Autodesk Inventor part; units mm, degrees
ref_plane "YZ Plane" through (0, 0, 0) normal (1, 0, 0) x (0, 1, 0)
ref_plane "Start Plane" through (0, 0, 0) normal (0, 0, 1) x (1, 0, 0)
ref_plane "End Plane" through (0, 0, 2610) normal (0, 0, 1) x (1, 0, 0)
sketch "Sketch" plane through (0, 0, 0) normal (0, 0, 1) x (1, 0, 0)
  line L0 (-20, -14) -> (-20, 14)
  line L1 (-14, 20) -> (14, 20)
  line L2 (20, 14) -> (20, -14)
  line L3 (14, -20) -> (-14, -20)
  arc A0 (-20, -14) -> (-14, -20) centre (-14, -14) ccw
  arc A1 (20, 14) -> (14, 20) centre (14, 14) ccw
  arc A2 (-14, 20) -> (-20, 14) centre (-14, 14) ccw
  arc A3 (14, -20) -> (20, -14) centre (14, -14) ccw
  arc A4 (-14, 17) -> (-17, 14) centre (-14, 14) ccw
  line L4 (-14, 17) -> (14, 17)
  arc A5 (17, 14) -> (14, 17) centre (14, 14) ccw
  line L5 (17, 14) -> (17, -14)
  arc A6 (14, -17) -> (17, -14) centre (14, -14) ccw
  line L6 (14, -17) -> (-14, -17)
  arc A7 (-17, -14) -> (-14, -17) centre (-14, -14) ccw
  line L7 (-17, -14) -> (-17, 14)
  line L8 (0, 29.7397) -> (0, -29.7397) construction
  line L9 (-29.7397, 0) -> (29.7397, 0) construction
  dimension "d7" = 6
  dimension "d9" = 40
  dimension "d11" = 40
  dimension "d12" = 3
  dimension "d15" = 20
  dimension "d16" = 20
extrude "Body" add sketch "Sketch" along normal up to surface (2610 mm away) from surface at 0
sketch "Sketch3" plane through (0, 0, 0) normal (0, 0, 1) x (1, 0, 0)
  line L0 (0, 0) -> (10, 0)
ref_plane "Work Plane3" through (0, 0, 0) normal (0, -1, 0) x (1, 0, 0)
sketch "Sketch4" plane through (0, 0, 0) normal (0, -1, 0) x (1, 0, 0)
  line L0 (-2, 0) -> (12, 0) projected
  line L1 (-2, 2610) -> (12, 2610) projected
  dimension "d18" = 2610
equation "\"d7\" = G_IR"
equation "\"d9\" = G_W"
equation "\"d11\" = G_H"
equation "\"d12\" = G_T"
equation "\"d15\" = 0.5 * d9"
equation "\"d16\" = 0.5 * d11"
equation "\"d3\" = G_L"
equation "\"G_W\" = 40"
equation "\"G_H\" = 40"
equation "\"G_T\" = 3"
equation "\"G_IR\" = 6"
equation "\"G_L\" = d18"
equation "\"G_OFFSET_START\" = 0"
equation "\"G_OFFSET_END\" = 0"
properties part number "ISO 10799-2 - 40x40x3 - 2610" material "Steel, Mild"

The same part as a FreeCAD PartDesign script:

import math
import FreeCAD as App
import Part
import Sketcher
from FreeCAD import Vector
Q = App.Units.Quantity

doc = App.newDocument("Part")
body = doc.addObject("PartDesign::Body", "Body")

# Sketch on XY plane
sketch1 = body.newObject("Sketcher::SketchObject", "Sketch")
sketch1.AttachmentSupport = (doc.getObject("XY_Plane"), [""])
sketch1.MapMode = "FlatFace"
sketch1.addGeometry(Part.LineSegment(Vector(-20, 14, 0), Vector(-20, -14, 0)), False)
sketch1.addGeometry(Part.ArcOfCircle(Part.Circle(Vector(-14, -14, 0), Vector(0, 0, 1), 6), math.radians(180), math.radians(270)), False)
sketch1.addGeometry(Part.LineSegment(Vector(-14, -20, 0), Vector(14, -20, 0)), False)
sketch1.addGeometry(Part.ArcOfCircle(Part.Circle(Vector(14, -14, 0), Vector(0, 0, 1), 6), math.radians(-90), math.radians(0)), False)
sketch1.addGeometry(Part.LineSegment(Vector(20, -14, 0), Vector(20, 14, 0)), False)
sketch1.addGeometry(Part.ArcOfCircle(Part.Circle(Vector(14, 14, 0), Vector(0, 0, 1), 6), math.radians(0), math.radians(90)), False)
sketch1.addGeometry(Part.LineSegment(Vector(14, 20, 0), Vector(-14, 20, 0)), False)
sketch1.addGeometry(Part.ArcOfCircle(Part.Circle(Vector(-14, 14, 0), Vector(0, 0, 1), 6), math.radians(90), math.radians(180)), False)
sketch1.addGeometry(Part.ArcOfCircle(Part.Circle(Vector(-14, 14, 0), Vector(0, 0, 1), 3), math.radians(90), math.radians(180)), False)
sketch1.addGeometry(Part.LineSegment(Vector(-14, 17, 0), Vector(14, 17, 0)), False)
sketch1.addGeometry(Part.ArcOfCircle(Part.Circle(Vector(14, 14, 0), Vector(0, 0, 1), 3), math.radians(0), math.radians(90)), False)
sketch1.addGeometry(Part.LineSegment(Vector(17, 14, 0), Vector(17, -14, 0)), False)
sketch1.addGeometry(Part.ArcOfCircle(Part.Circle(Vector(14, -14, 0), Vector(0, 0, 1), 3), math.radians(-90), math.radians(0)), False)
sketch1.addGeometry(Part.LineSegment(Vector(14, -17, 0), Vector(-14, -17, 0)), False)
sketch1.addGeometry(Part.ArcOfCircle(Part.Circle(Vector(-14, -14, 0), Vector(0, 0, 1), 3), math.radians(180), math.radians(270)), False)
sketch1.addGeometry(Part.LineSegment(Vector(-17, -14, 0), Vector(-17, 14, 0)), False)
sketch1.addConstraint(Sketcher.Constraint("Tangent", 0, 2, 1, 1))
sketch1.addConstraint(Sketcher.Constraint("Tangent", 1, 2, 2, 1))
sketch1.addConstraint(Sketcher.Constraint("Tangent", 2, 2, 3, 1))
sketch1.addConstraint(Sketcher.Constraint("Tangent", 3, 2, 4, 1))
sketch1.addConstraint(Sketcher.Constraint("Tangent", 4, 2, 5, 1))
sketch1.addConstraint(Sketcher.Constraint("Tangent", 5, 2, 6, 1))
sketch1.addConstraint(Sketcher.Constraint("Tangent", 6, 2, 7, 1))
sketch1.addConstraint(Sketcher.Constraint("Tangent", 7, 2, 0, 1))
sketch1.addConstraint(Sketcher.Constraint("Tangent", 8, 1, 9, 1))
sketch1.addConstraint(Sketcher.Constraint("Tangent", 9, 2, 10, 2))
sketch1.addConstraint(Sketcher.Constraint("Tangent", 10, 1, 11, 1))
sketch1.addConstraint(Sketcher.Constraint("Tangent", 11, 2, 12, 2))
sketch1.addConstraint(Sketcher.Constraint("Tangent", 12, 1, 13, 1))
sketch1.addConstraint(Sketcher.Constraint("Tangent", 13, 2, 14, 2))
sketch1.addConstraint(Sketcher.Constraint("Tangent", 14, 1, 15, 1))
sketch1.addConstraint(Sketcher.Constraint("Tangent", 15, 2, 8, 2))
sketch1.addConstraint(Sketcher.Constraint("Vertical", 0))
sketch1.addConstraint(Sketcher.Constraint("Horizontal", 2))
sketch1.addConstraint(Sketcher.Constraint("Vertical", 4))
sketch1.addConstraint(Sketcher.Constraint("Horizontal", 6))
sketch1.addConstraint(Sketcher.Constraint("Horizontal", 9))
sketch1.addConstraint(Sketcher.Constraint("Vertical", 11))
sketch1.addConstraint(Sketcher.Constraint("Horizontal", 13))
sketch1.addConstraint(Sketcher.Constraint("Vertical", 15))
sketch1.addConstraint(Sketcher.Constraint("Coincident", 8, 3, 7, 3))
sketch1.addConstraint(Sketcher.Constraint("Coincident", 10, 3, 5, 3))
sketch1.addConstraint(Sketcher.Constraint("Coincident", 12, 3, 3, 3))
sketch1.addConstraint(Sketcher.Constraint("Equal", 1, 3))
sketch1.addConstraint(Sketcher.Constraint("Equal", 3, 5))
sketch1.addConstraint(Sketcher.Constraint("Equal", 5, 7))
sketch1.addConstraint(Sketcher.Constraint("Equal", 12, 14))
sketch1.addConstraint(Sketcher.Constraint("Symmetric", 1, 3, 5, 3, -1, 1))
sketch1.addConstraint(Sketcher.Constraint("Equal", 13, 0))
sketch1.addConstraint(Sketcher.Constraint("Radius", 1, Q("6 mm")))
sketch1.addConstraint(Sketcher.Constraint("Radius", 8, Q("3 mm")))
sketch1.addConstraint(Sketcher.Constraint("DistanceX", 0, 2, -1, 1, Q("20 mm")))
pad1 = body.newObject("PartDesign::Pad", "Pad")
pad1.Profile = sketch1
pad1.Length = 2610

doc.recompute()
